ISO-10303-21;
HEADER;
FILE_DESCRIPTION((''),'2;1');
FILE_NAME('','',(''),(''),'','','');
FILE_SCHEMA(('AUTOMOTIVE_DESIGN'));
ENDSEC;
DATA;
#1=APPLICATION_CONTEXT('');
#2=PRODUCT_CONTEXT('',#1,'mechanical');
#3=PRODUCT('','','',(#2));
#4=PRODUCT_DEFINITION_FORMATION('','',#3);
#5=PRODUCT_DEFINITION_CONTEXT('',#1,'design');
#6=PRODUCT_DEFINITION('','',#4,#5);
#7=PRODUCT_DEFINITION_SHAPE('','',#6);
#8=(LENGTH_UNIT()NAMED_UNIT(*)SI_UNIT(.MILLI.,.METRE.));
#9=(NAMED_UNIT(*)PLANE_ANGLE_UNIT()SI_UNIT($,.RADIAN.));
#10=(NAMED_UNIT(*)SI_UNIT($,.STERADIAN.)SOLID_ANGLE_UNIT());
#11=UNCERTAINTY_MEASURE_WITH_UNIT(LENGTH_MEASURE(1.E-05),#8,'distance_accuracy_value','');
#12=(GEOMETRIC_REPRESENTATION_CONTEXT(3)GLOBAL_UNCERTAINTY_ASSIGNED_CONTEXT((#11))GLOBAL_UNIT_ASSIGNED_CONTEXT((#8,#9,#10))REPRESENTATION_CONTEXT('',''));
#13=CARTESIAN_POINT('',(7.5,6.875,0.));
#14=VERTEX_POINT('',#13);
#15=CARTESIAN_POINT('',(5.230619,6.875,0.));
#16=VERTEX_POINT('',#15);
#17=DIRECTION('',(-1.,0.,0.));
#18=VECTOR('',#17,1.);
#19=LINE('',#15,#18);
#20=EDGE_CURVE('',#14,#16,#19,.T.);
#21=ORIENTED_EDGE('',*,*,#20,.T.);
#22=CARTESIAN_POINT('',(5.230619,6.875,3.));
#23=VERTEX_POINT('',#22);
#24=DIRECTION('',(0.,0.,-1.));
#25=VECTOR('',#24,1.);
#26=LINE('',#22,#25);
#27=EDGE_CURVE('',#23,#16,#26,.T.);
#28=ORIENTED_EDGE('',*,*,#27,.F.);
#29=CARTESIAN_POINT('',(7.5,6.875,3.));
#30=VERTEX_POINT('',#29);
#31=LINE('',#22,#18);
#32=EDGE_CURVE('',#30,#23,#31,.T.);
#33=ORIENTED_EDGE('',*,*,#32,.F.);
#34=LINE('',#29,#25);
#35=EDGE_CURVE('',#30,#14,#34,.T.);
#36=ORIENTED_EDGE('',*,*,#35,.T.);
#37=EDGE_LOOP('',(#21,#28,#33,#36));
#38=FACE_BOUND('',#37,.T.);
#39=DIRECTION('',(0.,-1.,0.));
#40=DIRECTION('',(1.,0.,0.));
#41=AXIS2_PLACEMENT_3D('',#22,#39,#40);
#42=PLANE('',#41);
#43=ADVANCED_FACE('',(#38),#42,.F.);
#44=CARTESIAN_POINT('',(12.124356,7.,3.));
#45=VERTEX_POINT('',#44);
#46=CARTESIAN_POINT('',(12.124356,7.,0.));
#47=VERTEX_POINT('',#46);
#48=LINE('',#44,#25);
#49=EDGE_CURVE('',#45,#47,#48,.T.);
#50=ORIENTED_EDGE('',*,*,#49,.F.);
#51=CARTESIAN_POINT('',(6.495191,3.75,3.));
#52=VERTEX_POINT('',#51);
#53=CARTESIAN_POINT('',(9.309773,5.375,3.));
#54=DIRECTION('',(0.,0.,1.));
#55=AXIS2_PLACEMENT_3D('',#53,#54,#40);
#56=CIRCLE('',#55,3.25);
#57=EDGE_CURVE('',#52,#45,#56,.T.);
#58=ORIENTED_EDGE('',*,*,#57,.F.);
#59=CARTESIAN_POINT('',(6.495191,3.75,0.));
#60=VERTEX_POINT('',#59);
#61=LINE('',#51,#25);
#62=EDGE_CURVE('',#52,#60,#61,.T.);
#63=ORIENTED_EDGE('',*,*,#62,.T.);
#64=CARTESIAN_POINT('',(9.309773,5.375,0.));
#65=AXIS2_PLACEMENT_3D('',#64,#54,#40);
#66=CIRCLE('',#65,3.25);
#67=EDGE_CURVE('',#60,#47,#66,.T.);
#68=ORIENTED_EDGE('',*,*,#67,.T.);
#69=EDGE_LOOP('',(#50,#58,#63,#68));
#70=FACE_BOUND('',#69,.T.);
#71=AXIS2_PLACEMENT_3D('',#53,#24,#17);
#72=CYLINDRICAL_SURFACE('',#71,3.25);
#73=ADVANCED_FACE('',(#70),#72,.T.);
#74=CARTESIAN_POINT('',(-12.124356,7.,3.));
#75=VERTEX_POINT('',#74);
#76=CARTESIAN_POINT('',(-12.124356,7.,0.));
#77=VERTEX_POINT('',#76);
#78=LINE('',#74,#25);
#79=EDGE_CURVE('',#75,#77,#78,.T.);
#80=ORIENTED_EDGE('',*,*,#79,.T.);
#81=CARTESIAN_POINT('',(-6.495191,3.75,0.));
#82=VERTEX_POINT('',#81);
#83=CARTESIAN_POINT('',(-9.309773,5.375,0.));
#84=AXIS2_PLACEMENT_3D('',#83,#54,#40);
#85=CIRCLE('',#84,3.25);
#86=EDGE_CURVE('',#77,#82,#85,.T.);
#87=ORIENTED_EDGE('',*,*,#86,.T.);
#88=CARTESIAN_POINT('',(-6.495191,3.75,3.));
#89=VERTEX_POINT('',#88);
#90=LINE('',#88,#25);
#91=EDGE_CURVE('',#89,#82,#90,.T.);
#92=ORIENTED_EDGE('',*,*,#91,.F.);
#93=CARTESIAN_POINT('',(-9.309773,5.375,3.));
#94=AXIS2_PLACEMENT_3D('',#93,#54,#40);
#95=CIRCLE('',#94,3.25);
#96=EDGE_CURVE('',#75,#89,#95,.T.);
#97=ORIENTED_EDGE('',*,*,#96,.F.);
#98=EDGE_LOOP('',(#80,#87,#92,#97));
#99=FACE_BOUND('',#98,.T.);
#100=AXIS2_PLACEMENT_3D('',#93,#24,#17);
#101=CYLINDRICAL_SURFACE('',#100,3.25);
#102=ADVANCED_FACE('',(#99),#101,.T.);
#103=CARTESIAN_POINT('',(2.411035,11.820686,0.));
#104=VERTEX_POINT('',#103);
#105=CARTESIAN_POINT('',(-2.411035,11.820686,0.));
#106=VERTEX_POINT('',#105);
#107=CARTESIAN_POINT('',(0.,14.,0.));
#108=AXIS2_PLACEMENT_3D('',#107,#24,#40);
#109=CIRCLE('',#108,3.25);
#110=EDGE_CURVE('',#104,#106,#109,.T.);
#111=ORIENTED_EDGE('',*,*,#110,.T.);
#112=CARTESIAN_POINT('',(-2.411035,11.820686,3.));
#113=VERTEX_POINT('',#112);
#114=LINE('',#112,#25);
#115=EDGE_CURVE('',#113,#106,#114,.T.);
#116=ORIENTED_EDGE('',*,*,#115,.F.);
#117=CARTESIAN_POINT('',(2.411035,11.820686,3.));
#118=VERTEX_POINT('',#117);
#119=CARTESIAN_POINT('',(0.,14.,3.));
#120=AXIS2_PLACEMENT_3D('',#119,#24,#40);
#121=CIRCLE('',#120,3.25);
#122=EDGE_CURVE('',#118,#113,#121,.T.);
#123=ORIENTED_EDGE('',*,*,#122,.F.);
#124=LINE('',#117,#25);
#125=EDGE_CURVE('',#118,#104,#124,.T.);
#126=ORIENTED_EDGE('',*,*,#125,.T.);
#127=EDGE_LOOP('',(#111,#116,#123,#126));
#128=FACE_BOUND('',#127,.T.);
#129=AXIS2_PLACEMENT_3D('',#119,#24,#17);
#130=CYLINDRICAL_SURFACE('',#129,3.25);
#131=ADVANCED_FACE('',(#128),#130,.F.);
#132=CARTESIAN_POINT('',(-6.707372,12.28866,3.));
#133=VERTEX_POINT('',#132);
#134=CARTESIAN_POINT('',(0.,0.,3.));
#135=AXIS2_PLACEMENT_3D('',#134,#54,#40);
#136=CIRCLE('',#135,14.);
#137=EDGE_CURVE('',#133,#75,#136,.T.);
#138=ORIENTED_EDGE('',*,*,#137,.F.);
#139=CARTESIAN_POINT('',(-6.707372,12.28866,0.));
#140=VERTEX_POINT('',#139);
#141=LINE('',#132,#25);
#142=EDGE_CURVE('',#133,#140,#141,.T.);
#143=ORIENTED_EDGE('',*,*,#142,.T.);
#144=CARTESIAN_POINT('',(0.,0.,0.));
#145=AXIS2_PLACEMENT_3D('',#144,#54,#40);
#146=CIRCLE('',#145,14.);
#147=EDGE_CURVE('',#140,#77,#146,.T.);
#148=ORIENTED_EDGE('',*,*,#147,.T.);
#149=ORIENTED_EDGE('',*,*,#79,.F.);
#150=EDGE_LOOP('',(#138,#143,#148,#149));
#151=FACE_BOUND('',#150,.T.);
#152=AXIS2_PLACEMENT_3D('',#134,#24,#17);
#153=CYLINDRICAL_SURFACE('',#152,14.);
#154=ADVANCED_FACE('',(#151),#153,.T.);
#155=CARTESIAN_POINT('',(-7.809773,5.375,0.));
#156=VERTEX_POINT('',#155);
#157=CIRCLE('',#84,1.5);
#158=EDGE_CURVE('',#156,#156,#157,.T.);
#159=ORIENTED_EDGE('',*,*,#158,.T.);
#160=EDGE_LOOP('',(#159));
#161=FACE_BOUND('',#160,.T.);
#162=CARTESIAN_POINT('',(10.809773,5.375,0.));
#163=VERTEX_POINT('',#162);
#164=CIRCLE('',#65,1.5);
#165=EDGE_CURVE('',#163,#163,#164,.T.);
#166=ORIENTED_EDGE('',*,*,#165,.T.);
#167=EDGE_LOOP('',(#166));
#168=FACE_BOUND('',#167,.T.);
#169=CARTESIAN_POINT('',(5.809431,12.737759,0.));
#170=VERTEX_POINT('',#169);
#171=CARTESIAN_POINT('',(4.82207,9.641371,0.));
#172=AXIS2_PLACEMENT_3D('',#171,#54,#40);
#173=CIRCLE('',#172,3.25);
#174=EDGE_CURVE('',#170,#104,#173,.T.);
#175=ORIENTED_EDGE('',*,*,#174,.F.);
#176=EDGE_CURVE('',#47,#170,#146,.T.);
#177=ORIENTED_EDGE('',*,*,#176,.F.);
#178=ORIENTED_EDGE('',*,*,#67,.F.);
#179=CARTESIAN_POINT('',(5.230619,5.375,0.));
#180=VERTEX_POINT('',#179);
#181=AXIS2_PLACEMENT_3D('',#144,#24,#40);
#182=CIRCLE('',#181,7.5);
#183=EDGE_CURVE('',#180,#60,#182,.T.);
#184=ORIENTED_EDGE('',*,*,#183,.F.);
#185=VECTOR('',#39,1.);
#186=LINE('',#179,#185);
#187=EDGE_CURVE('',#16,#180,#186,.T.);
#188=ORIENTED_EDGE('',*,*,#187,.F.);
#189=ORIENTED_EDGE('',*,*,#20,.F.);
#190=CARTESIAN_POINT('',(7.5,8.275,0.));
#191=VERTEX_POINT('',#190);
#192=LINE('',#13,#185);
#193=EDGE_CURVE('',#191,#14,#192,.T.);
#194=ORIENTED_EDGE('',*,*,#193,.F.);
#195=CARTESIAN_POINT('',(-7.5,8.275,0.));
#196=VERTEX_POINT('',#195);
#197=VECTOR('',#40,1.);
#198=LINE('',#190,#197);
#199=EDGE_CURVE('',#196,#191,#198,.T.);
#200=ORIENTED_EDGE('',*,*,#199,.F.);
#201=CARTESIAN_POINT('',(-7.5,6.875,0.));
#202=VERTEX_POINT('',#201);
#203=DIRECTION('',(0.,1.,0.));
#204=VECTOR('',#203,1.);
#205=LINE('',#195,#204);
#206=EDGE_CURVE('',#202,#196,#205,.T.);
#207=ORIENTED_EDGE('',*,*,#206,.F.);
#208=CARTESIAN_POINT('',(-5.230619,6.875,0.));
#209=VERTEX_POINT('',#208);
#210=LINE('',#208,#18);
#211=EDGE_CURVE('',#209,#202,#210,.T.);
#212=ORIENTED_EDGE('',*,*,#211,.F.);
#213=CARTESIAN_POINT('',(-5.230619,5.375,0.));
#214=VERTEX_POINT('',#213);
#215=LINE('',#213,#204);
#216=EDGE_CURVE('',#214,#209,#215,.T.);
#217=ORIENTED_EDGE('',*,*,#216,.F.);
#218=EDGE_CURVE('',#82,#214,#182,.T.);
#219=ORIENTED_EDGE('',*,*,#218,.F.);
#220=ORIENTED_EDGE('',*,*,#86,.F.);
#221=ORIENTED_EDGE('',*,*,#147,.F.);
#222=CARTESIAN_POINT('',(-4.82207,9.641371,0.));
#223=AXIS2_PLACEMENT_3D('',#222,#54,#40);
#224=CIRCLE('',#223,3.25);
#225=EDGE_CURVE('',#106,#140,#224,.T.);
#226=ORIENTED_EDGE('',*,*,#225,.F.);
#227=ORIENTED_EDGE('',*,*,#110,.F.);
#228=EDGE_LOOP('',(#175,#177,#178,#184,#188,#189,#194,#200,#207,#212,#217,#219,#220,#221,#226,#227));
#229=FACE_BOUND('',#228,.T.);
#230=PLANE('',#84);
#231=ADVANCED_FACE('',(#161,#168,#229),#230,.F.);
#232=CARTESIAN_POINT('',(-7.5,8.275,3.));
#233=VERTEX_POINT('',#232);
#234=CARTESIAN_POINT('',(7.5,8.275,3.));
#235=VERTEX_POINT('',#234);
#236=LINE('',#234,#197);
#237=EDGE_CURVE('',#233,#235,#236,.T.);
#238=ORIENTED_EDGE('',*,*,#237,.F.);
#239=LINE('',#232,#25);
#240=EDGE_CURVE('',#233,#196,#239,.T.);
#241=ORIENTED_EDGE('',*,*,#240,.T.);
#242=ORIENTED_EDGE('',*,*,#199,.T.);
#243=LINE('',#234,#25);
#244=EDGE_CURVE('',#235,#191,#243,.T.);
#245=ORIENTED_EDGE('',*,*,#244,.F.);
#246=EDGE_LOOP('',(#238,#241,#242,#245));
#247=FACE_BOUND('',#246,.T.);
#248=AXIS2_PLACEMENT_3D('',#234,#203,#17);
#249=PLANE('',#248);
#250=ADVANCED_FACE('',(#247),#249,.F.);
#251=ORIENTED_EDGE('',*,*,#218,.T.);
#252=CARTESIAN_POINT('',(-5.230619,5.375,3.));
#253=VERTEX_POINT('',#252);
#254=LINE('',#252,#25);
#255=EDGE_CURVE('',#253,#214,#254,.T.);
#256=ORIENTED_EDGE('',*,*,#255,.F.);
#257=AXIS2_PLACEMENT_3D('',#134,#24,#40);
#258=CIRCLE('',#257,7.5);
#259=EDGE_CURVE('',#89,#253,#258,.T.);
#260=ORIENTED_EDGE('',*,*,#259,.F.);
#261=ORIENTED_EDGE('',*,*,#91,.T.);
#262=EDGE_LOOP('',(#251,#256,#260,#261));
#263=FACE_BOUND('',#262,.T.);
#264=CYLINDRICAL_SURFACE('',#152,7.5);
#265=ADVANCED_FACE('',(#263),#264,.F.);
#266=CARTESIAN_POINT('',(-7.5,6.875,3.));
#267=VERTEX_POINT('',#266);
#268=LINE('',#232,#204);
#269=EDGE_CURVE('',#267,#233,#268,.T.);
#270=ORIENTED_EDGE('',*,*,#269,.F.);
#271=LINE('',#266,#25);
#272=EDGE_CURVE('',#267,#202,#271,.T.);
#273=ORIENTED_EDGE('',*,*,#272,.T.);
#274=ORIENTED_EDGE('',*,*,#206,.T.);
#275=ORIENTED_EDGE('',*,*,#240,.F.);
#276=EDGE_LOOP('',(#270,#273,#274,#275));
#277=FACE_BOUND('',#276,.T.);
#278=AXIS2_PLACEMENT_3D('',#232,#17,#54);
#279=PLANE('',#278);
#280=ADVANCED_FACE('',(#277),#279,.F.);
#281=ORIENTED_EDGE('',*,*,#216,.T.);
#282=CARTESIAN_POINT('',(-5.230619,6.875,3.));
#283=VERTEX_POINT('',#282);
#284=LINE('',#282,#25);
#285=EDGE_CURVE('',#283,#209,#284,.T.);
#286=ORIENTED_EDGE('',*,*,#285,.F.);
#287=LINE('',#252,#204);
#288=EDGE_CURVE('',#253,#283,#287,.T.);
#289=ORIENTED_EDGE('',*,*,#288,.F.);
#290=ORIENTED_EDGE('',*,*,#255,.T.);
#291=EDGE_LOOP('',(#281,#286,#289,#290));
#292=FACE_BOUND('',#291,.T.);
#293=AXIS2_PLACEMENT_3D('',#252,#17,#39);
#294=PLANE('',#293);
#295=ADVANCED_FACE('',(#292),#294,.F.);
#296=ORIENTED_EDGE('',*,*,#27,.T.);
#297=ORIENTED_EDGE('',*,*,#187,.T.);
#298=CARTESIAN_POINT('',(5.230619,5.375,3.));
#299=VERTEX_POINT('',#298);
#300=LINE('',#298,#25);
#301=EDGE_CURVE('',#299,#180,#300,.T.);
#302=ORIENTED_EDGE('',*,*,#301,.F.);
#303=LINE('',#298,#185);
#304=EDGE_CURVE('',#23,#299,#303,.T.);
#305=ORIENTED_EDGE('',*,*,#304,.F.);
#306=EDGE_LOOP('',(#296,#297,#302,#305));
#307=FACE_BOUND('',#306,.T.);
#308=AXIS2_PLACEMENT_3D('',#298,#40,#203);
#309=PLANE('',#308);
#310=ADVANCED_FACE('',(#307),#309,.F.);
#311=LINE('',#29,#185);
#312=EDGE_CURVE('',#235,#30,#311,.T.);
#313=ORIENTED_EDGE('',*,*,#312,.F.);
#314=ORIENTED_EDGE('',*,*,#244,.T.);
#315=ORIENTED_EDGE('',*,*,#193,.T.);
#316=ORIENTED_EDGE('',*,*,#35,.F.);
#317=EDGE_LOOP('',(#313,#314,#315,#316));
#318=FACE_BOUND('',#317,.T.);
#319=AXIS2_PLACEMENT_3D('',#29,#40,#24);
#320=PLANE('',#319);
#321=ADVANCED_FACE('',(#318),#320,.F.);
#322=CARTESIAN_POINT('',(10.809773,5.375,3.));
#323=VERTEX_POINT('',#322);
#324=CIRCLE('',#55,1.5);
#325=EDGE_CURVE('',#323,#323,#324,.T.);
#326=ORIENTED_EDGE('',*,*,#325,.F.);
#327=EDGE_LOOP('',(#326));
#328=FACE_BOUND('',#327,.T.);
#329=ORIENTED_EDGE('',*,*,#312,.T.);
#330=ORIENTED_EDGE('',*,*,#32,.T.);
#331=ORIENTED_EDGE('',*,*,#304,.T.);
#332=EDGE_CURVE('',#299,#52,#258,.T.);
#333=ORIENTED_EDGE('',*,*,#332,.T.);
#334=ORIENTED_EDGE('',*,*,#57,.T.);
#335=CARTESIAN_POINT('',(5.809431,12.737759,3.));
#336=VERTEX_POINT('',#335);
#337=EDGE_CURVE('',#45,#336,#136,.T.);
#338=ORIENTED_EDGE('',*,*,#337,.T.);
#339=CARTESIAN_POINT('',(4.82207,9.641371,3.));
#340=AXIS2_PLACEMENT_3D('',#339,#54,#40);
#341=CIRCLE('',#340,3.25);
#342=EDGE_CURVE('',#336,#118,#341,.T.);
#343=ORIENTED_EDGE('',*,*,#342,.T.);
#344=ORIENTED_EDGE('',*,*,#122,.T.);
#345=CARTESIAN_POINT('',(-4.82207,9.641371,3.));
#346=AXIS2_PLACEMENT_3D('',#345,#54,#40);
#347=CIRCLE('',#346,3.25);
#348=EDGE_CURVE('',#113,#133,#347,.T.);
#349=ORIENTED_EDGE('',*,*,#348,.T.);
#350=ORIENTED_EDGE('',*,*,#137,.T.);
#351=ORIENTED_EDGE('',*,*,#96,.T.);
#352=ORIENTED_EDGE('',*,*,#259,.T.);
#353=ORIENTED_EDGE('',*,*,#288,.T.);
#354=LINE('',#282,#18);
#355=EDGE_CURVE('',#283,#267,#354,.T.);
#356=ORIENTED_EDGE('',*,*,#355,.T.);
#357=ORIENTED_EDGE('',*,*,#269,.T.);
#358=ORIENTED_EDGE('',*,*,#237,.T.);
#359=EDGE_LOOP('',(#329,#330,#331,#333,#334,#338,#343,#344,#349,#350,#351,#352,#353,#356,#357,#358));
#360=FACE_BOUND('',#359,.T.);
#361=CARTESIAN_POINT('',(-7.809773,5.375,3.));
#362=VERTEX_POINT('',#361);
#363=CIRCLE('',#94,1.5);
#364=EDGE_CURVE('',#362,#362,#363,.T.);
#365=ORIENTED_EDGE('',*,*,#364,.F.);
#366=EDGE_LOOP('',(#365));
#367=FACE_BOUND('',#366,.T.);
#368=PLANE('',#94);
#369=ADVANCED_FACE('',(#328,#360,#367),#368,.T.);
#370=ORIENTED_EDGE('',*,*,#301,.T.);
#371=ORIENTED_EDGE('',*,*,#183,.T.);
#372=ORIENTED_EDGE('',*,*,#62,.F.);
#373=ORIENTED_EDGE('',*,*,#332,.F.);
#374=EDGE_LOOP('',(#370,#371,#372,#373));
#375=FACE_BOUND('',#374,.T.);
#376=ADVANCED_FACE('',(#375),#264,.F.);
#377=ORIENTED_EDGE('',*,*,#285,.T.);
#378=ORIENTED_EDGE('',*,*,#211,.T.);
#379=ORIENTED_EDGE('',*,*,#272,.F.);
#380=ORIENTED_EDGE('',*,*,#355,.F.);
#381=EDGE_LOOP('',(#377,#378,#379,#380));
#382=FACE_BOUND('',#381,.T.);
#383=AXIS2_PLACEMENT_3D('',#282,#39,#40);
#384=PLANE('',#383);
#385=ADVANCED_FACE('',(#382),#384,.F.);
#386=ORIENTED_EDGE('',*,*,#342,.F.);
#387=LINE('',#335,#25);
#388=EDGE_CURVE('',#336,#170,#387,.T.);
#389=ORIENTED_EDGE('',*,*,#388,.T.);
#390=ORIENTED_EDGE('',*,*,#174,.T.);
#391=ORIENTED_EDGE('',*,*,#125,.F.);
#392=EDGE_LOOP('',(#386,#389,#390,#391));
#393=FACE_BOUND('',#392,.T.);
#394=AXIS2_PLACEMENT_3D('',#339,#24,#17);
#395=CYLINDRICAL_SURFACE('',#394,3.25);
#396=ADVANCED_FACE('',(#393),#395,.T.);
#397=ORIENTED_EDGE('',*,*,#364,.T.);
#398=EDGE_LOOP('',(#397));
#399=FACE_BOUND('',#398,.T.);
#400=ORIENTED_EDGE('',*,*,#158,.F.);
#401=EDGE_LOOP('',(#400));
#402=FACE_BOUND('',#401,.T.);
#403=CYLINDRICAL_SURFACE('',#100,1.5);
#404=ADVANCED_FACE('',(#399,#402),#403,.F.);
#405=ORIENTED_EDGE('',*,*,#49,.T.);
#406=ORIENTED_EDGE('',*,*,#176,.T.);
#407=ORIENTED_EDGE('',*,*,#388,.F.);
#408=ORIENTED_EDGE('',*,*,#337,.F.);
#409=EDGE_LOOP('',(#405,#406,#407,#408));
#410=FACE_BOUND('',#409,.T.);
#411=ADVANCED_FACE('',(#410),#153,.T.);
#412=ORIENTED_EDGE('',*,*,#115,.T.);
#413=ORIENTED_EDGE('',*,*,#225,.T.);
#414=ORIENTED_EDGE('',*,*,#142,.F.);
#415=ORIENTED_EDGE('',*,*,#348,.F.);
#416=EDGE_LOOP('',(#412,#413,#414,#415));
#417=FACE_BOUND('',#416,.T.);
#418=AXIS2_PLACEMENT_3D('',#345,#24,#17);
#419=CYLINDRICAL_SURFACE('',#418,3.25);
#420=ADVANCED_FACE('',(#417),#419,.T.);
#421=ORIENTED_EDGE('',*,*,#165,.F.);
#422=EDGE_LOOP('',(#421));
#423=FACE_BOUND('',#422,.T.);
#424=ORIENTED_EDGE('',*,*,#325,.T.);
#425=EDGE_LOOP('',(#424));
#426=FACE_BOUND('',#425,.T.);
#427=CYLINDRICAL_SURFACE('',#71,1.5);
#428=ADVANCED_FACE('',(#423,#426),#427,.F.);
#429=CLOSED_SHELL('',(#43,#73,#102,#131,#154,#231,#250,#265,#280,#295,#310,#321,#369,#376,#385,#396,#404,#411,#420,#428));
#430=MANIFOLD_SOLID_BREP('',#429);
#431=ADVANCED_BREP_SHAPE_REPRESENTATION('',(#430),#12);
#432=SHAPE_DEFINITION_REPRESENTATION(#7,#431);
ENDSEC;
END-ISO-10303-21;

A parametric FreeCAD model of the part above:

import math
import FreeCAD as App
import Part
import Sketcher

V = App.Vector

doc = App.newDocument("Part")
body = doc.addObject("PartDesign::Body", "Body")

# Sketch on XY plane
sketch1 = doc.addObject("Sketcher::SketchObject", "Sketch")
body.addObject(sketch1)
sketch1.AttachmentSupport = (doc.XY_Plane, [""])
sketch1.MapMode = "FlatFace"
sketch1.addGeometry(Part.LineSegment(V(-5.2, 6.9, 0), V(-7.5, 6.9, 0)), False)
sketch1.addGeometry(Part.LineSegment(V(-7.5, 6.9, 0), V(-7.5, 8.3, 0)), False)
sketch1.addGeometry(Part.LineSegment(V(-7.5, 8.3, 0), V(7.5, 8.3, 0)), False)
sketch1.addGeometry(Part.LineSegment(V(7.5, 8.3, 0), V(7.5, 6.9, 0)), False)
sketch1.addGeometry(Part.LineSegment(V(7.5, 6.9, 0), V(5.2, 6.9, 0)), False)
sketch1.addGeometry(Part.LineSegment(V(5.2, 6.9, 0), V(5.2, 5.4, 0)), False)
sketch1.addGeometry(Part.ArcOfCircle(Part.Circle(V(0, 0, 0), V(0, 0, 1), 7.5), math.radians(30), math.radians(45.78)), False)
sketch1.addGeometry(Part.ArcOfCircle(Part.Circle(V(9.3, 5.4, 0), V(0, 0, 1), 3.2), math.radians(-150), math.radians(30)), False)
sketch1.addGeometry(Part.ArcOfCircle(Part.Circle(V(0, 0, 0), V(0, 0, 1), 14), math.radians(30), math.radians(65)), False)
sketch1.addGeometry(Part.ArcOfCircle(Part.Circle(V(4.8, 9.6, 0), V(0, 0, 1), 3.2), math.radians(72), math.radians(138)), False)
sketch1.addGeometry(Part.ArcOfCircle(Part.Circle(V(0, 14, 0), V(0, 0, 1), 3.3), math.radians(-138), math.radians(-42)), False)
sketch1.addGeometry(Part.ArcOfCircle(Part.Circle(V(-4.8, 9.6, 0), V(0, 0, 1), 3.2), math.radians(42), math.radians(125)), False)
sketch1.addGeometry(Part.ArcOfCircle(Part.Circle(V(0, 0, 0), V(0, 0, 1), 14), math.radians(119), math.radians(150)), False)
sketch1.addGeometry(Part.ArcOfCircle(Part.Circle(V(-9.3, 5.4, 0), V(0, 0, 1), 3.2), math.radians(150), math.radians(330)), False)
sketch1.addGeometry(Part.ArcOfCircle(Part.Circle(V(0, 0, 0), V(0, 0, 1), 7.5), math.radians(134.22), math.radians(150)), False)
sketch1.addGeometry(Part.LineSegment(V(-5.2, 5.4, 0), V(-5.2, 6.9, 0)), False)
sketch1.addGeometry(Part.Circle(V(-9.3, 5.4, 0), V(0, 0, 1), 1.5), False)
sketch1.addGeometry(Part.Circle(V(9.3, 5.4, 0), V(0, 0, 1), 1.5), False)
sketch1.addConstraint(Sketcher.Constraint("Coincident", 0, 2, 1, 1))
sketch1.addConstraint(Sketcher.Constraint("Coincident", 1, 2, 2, 1))
sketch1.addConstraint(Sketcher.Constraint("Coincident", 2, 2, 3, 1))
sketch1.addConstraint(Sketcher.Constraint("Coincident", 3, 2, 4, 1))
sketch1.addConstraint(Sketcher.Constraint("Coincident", 4, 2, 5, 1))
sketch1.addConstraint(Sketcher.Constraint("Coincident", 5, 2, 6, 2))
sketch1.addConstraint(Sketcher.Constraint("Tangent", 6, 1, 7, 1))
sketch1.addConstraint(Sketcher.Constraint("Tangent", 7, 2, 8, 1))
sketch1.addConstraint(Sketcher.Constraint("Coincident", 8, 2, 9, 1))
sketch1.addConstraint(Sketcher.Constraint("Tangent", 9, 2, 10, 2))
sketch1.addConstraint(Sketcher.Constraint("Tangent", 10, 1, 11, 1))
sketch1.addConstraint(Sketcher.Constraint("Coincident", 11, 2, 12, 1))
sketch1.addConstraint(Sketcher.Constraint("Tangent", 12, 2, 13, 1))
sketch1.addConstraint(Sketcher.Constraint("Tangent", 13, 2, 14, 2))
sketch1.addConstraint(Sketcher.Constraint("Coincident", 14, 1, 15, 1))
sketch1.addConstraint(Sketcher.Constraint("Coincident", 15, 2, 0, 1))
sketch1.addConstraint(Sketcher.Constraint("Horizontal", 0))
sketch1.addConstraint(Sketcher.Constraint("Vertical", 1))
sketch1.addConstraint(Sketcher.Constraint("Horizontal", 2))
sketch1.addConstraint(Sketcher.Constraint("Vertical", 3))
sketch1.addConstraint(Sketcher.Constraint("Horizontal", 4))
sketch1.addConstraint(Sketcher.Constraint("Vertical", 5))
sketch1.addConstraint(Sketcher.Constraint("Vertical", 15))
sketch1.addConstraint(Sketcher.Constraint("Coincident", 6, 3, -1, 1))
sketch1.addConstraint(Sketcher.Constraint("Coincident", 8, 3, -1, 1))
sketch1.addConstraint(Sketcher.Constraint("Coincident", 12, 3, -1, 1))
sketch1.addConstraint(Sketcher.Constraint("Coincident", 14, 3, -1, 1))
sketch1.addConstraint(Sketcher.Constraint("Coincident", 16, 3, 13, 3))
sketch1.addConstraint(Sketcher.Constraint("Coincident", 17, 3, 7, 3))
sketch1.addConstraint(Sketcher.Constraint("Equal", 7, 9))
sketch1.addConstraint(Sketcher.Constraint("Equal", 9, 10))
sketch1.addConstraint(Sketcher.Constraint("Equal", 10, 11))
sketch1.addConstraint(Sketcher.Constraint("Equal", 8, 12))
sketch1.addConstraint(Sketcher.Constraint("Equal", 11, 13))
sketch1.addConstraint(Sketcher.Constraint("Equal", 16, 17))
sketch1.addConstraint(Sketcher.Constraint("Symmetric", 9, 3, 11, 3, -2))
sketch1.addConstraint(Sketcher.Constraint("Symmetric", 0, 2, 3, 2, -2))
sketch1.addConstraint(Sketcher.Constraint("Horizontal", 7, 3, 13, 3))
sketch1.addConstraint(Sketcher.Constraint("Horizontal", 17, 3, 5, 2))
sketch1.addConstraint(Sketcher.Constraint("Horizontal", 5, 2, 14, 1))
sketch1.addConstraint(Sketcher.Constraint("Diameter", 16, 3.0))
sketch1.addConstraint(Sketcher.Constraint("Radius", 8, 14.0))
sketch1.addConstraint(Sketcher.Constraint("Radius", 6, 7.5))
sketch1.addConstraint(Sketcher.Constraint("DistanceX", 2, 1, 2, 2, 15.0))
sketch1.addConstraint(Sketcher.Constraint("DistanceY", 1, 1, 1, 2, 1.4))
sketch1.addConstraint(Sketcher.Constraint("DistanceY", 5, 2, 5, 1, 1.5))
sketch1.addConstraint(Sketcher.Constraint("DistanceY", -1, 1, 10, 3, 14.0))
sketch1.addConstraint(Sketcher.Constraint("DistanceY", -1, 1, 7, 2, 7.0))
sketch1.addConstraint(Sketcher.Constraint("DistanceX", 11, 2, 11, 3, 1.885302))
pad1 = doc.addObject("PartDesign::Pad", "Pad")
body.addObject(pad1)
pad1.Profile = sketch1
pad1.Length = 3

doc.recompute()
